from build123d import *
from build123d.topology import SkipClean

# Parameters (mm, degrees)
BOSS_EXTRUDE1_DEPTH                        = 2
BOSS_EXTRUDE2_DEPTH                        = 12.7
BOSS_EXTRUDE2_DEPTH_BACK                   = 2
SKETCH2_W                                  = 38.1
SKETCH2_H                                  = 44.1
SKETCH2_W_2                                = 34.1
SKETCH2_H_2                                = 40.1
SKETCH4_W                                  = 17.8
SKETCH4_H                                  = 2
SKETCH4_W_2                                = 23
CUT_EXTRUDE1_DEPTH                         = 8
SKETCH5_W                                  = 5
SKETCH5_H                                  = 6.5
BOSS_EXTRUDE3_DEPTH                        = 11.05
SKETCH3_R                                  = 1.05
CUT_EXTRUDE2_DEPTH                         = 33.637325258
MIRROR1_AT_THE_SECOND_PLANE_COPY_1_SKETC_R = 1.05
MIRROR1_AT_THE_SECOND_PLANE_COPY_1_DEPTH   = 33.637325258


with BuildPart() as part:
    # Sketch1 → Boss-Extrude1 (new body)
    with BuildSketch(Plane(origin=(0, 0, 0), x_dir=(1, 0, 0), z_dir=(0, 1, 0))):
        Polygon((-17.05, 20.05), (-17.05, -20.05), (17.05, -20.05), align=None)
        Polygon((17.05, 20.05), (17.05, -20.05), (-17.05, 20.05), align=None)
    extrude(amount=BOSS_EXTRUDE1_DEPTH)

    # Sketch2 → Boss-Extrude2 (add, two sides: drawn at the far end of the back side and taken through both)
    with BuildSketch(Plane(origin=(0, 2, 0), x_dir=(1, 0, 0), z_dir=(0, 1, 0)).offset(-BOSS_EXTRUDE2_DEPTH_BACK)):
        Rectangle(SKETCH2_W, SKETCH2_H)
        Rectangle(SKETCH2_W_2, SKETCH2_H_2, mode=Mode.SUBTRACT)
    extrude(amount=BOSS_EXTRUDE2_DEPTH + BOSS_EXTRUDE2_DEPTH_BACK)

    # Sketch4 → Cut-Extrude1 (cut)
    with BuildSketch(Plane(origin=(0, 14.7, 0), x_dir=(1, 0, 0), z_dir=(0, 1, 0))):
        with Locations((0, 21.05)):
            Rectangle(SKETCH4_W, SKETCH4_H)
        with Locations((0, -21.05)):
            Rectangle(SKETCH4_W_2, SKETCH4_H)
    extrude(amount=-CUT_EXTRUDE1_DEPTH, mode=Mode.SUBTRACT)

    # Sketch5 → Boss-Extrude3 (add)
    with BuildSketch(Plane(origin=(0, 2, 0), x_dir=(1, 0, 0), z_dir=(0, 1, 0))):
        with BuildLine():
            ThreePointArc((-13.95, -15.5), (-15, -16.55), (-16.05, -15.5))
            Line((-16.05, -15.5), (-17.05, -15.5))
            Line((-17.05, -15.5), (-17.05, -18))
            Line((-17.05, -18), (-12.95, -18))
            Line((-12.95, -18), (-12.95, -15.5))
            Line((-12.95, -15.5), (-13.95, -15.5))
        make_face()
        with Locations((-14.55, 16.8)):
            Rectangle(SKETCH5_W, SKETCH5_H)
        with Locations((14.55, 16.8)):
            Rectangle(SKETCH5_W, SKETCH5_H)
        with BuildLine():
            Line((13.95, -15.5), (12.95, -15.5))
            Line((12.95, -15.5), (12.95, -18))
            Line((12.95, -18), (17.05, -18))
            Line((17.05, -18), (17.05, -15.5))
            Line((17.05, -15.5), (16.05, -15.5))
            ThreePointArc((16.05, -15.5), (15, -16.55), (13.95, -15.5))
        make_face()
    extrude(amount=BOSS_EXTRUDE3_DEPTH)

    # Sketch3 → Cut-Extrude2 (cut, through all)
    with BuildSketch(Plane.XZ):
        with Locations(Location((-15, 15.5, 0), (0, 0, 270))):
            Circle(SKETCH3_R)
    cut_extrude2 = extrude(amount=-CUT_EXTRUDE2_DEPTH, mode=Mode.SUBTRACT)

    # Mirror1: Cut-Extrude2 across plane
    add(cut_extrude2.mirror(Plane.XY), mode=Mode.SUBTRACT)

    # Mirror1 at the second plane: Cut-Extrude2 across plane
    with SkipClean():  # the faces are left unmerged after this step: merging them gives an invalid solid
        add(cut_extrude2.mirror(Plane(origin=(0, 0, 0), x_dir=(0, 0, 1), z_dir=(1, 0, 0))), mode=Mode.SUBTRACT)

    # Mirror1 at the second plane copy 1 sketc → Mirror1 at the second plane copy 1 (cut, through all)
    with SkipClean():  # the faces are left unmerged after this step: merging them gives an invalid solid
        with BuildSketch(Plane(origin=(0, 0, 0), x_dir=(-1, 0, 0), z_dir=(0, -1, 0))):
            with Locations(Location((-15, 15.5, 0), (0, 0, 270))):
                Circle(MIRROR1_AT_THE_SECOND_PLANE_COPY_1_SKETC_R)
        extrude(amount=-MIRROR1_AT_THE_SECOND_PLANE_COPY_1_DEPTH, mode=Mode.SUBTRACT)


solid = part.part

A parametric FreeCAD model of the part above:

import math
import FreeCAD as App
import Part
import Sketcher

V = App.Vector
Q = App.Units.Quantity


def add_polygon(sketch, points):
    """Adds a closed chain of lines whose ends are joined by coincident constraints."""
    first, n = sketch.GeometryCount, len(points)
    for a, b in zip(points, points[1:] + points[:1]):
        sketch.addGeometry(Part.LineSegment(App.Vector(*a, 0), App.Vector(*b, 0)), False)
    for i in range(n):
        sketch.addConstraint(Sketcher.Constraint("Coincident", first + i, 2, first + (i + 1) % n, 1))

doc = App.newDocument("Part")
params = doc.addObject("Spreadsheet::Sheet", "Params")
for row, (alias, value) in enumerate([
    ("sketch1_width", "34.1 mm"),
    ("sketch1_height", "40.1 mm"),
    ("pad1_length", "2 mm"),
    ("sketch2_width", "38.1 mm"),
    ("sketch2_width2", "34.1 mm"),
    ("sketch2_height", "44.1 mm"),
    ("sketch2_height2", "40.1 mm"),
    ("pad2_length", "12.7 mm"),
    ("pad2_length2", "2 mm"),
    ("sketch3_width", "23 mm"),
    ("sketch3_height", "2 mm"),
    ("sketch3_width2", "17.8 mm"),
    ("pocket1_length", "8 mm"),
    ("sketch4_width", "1 mm"),
    ("sketch4_width2", "5 mm"),
    ("sketch4_radius", "1.05 mm"),
    ("sketch4_height", "2.5 mm"),
    ("sketch4_height2", "6.5 mm"),
    ("pad3_length", "11.05 mm"),
    ("sketch5_diameter", "2.1 mm"),
    ("sketch6_diameter", "2.1 mm"),
], start=1):
    params.set(f"A{row}", alias)
    params.set(f"B{row}", "=" + value)
    params.setAlias(f"B{row}", alias)

body = doc.addObject("PartDesign::Body", "Body")

# Sketch on XZ plane
sketch1 = body.newObject("Sketcher::SketchObject", "Sketch")
sketch1.AttachmentSupport = (doc.getObject("XZ_Plane"), [""])
sketch1.MapMode = "FlatFace"
add_polygon(sketch1, [(-17, -20), (-17, 20), (17, 20), (17, -20)])  # lines 0-3
sketch1.addConstraint([
    Sketcher.Constraint("Vertical", 0),
    Sketcher.Constraint("Horizontal", 1),
    Sketcher.Constraint("Vertical", 2),
    Sketcher.Constraint("Horizontal", 3),
    Sketcher.Constraint("Symmetric", 0, 2, 2, 2, -1, 1),
    Sketcher.Constraint("DistanceX", 1, 1, 1, 2, Q("34.1 mm")),
    Sketcher.Constraint("DistanceY", 0, 1, 0, 2, Q("40.1 mm")),
])
sketch1.setExpression("Constraints[9]", "Params.sketch1_width")
sketch1.setExpression("Constraints[10]", "Params.sketch1_height")
pad1 = body.newObject("PartDesign::Pad", "Pad")
pad1.Profile = sketch1
pad1.setExpression("Length", "Params.pad1_length")
pad1.Reversed = True

# Sketch on XZ plane
sketch2 = body.newObject("Sketcher::SketchObject", "Sketch001")
sketch2.AttachmentSupport = (doc.getObject("XZ_Plane"), [""])
sketch2.MapMode = "FlatFace"
sketch2.AttachmentOffset = App.Placement(V(0, 0, -2), App.Rotation())
add_polygon(sketch2, [(-19, -22), (-19, 22), (19, 22), (19, -22)])  # lines 0-3
add_polygon(sketch2, [(17, 20), (-17, 20), (-17, -20), (17, -20)])  # lines 4-7
sketch2.addConstraint([
    Sketcher.Constraint("Vertical", 0),
    Sketcher.Constraint("Horizontal", 1),
    Sketcher.Constraint("Vertical", 2),
    Sketcher.Constraint("Horizontal", 3),
    Sketcher.Constraint("Horizontal", 4),
    Sketcher.Constraint("Vertical", 5),
    Sketcher.Constraint("Horizontal", 6),
    Sketcher.Constraint("Vertical", 7),
    Sketcher.Constraint("Symmetric", 0, 2, 2, 2, -1, 1),
    Sketcher.Constraint("Symmetric", 4, 2, 6, 2, -1, 1),
    Sketcher.Constraint("DistanceX", 1, 1, 1, 2, Q("38.1 mm")),
    Sketcher.Constraint("DistanceX", 4, 2, 4, 1, Q("34.1 mm")),
    Sketcher.Constraint("DistanceY", 0, 1, 0, 2, Q("44.1 mm")),
    Sketcher.Constraint("DistanceY", 5, 2, 5, 1, Q("40.1 mm")),
])
sketch2.setExpression("Constraints[18]", "Params.sketch2_width")
sketch2.setExpression("Constraints[19]", "Params.sketch2_width2")
sketch2.setExpression("Constraints[20]", "Params.sketch2_height")
sketch2.setExpression("Constraints[21]", "Params.sketch2_height2")
pad2 = body.newObject("PartDesign::Pad", "Pad001")
pad2.Profile = sketch2
pad2.Type = "TwoLengths"
pad2.setExpression("Length", "Params.pad2_length")
pad2.setExpression("Length2", "Params.pad2_length2")
pad2.Reversed = True

# Sketch on XZ plane
sketch3 = body.newObject("Sketcher::SketchObject", "Sketch002")
sketch3.AttachmentSupport = (doc.getObject("XZ_Plane"), [""])
sketch3.MapMode = "FlatFace"
sketch3.AttachmentOffset = App.Placement(V(0, 0, -14.7), App.Rotation())
add_polygon(sketch3, [(-8.9, -22.1), (-8.9, -20.1), (8.9, -20.1), (8.9, -22.1)])  # lines 0-3
add_polygon(sketch3, [(-11.5, 20.1), (-11.5, 22.1), (11.5, 22.1), (11.5, 20.1)])  # lines 4-7
sketch3.addConstraint([
    Sketcher.Constraint("Vertical", 0),
    Sketcher.Constraint("Horizontal", 1),
    Sketcher.Constraint("Vertical", 2),
    Sketcher.Constraint("Horizontal", 3),
    Sketcher.Constraint("Vertical", 4),
    Sketcher.Constraint("Horizontal", 5),
    Sketcher.Constraint("Vertical", 6),
    Sketcher.Constraint("Horizontal", 7),
    Sketcher.Constraint("Equal", 2, 4),
    Sketcher.Constraint("DistanceX", 5, 1, 5, 2, Q("23 mm")),
    Sketcher.Constraint("DistanceY", 0, 1, 0, 2, Q("2 mm")),
    Sketcher.Constraint("DistanceX", 1, 1, 1, 2, Q("17.8 mm")),
    Sketcher.Constraint("DistanceX", 0, 2, -1, 1, Q("8.9 mm")),
    Sketcher.Constraint("DistanceX", 4, 2, -1, 1, Q("11.5 mm")),
    Sketcher.Constraint("DistanceY", 0, 2, 4, 2, Q("42.1 mm")),
    Sketcher.Constraint("DistanceY", 0, 2, -1, 1, Q("20.05 mm")),
])
sketch3.setExpression("Constraints[17]", "Params.sketch3_width")
sketch3.setExpression("Constraints[18]", "Params.sketch3_height")
sketch3.setExpression("Constraints[19]", "Params.sketch3_width2")
pocket1 = body.newObject("PartDesign::Pocket", "Pocket")
pocket1.Profile = sketch3
pocket1.setExpression("Length", "Params.pocket1_length")
pocket1.Reversed = True

# Sketch on XZ plane
sketch4 = body.newObject("Sketcher::SketchObject", "Sketch003")
sketch4.AttachmentSupport = (doc.getObject("XZ_Plane"), [""])
sketch4.MapMode = "FlatFace"
sketch4.AttachmentOffset = App.Placement(V(0, 0, -2), App.Rotation())
sketch4.addGeometry(Part.ArcOfCircle(Part.Circle(V(-15, 15.5, 0), V(0, 0, 1), 1.1), math.radians(0), math.radians(180)), False)  # 0
sketch4.addGeometry(Part.LineSegment(V(-16.1, 15.5, 0), V(-17.1, 15.5, 0)), False)  # 1
sketch4.addGeometry(Part.LineSegment(V(-17.1, 15.5, 0), V(-17.1, 18, 0)), False)  # 2
sketch4.addGeometry(Part.LineSegment(V(-17.1, 18, 0), V(-12.9, 18, 0)), False)  # 3
sketch4.addGeometry(Part.LineSegment(V(-12.9, 18, 0), V(-12.9, 15.5, 0)), False)  # 4
sketch4.addGeometry(Part.LineSegment(V(-12.9, 15.5, 0), V(-13.9, 15.5, 0)), False)  # 5
add_polygon(sketch4, [(-17.1, -20.1), (-17.1, -13.6), (-12.1, -13.6), (-12.1, -20.1)])  # lines 6-9
add_polygon(sketch4, [(12.1, -20.1), (12.1, -13.6), (17.1, -13.6), (17.1, -20.1)])  # lines 10-13
sketch4.addGeometry(Part.LineSegment(V(13.9, 15.5, 0), V(12.9, 15.5, 0)), False)  # 14
sketch4.addGeometry(Part.LineSegment(V(12.9, 15.5, 0), V(12.9, 18, 0)), False)  # 15
sketch4.addGeometry(Part.LineSegment(V(12.9, 18, 0), V(17.1, 18, 0)), False)  # 16
sketch4.addGeometry(Part.LineSegment(V(17.1, 18, 0), V(17.1, 15.5, 0)), False)  # 17
sketch4.addGeometry(Part.LineSegment(V(17.1, 15.5, 0), V(16.1, 15.5, 0)), False)  # 18
sketch4.addGeometry(Part.ArcOfCircle(Part.Circle(V(15, 15.5, 0), V(0, 0, 1), 1.1), math.radians(0), math.radians(180)), False)  # 19
sketch4.addConstraint([
    Sketcher.Constraint("Coincident", 0, 2, 1, 1),
    Sketcher.Constraint("Coincident", 1, 2, 2, 1),
    Sketcher.Constraint("Coincident", 2, 2, 3, 1),
    Sketcher.Constraint("Coincident", 3, 2, 4, 1),
    Sketcher.Constraint("Coincident", 4, 2, 5, 1),
    Sketcher.Constraint("Coincident", 5, 2, 0, 1),
    Sketcher.Constraint("Coincident", 14, 2, 15, 1),
    Sketcher.Constraint("Coincident", 15, 2, 16, 1),
    Sketcher.Constraint("Coincident", 16, 2, 17, 1),
    Sketcher.Constraint("Coincident", 17, 2, 18, 1),
    Sketcher.Constraint("Coincident", 18, 2, 19, 1),
    Sketcher.Constraint("Coincident", 19, 2, 14, 1),
    Sketcher.Constraint("Horizontal", 1),
    Sketcher.Constraint("Vertical", 2),
    Sketcher.Constraint("Horizontal", 3),
    Sketcher.Constraint("Vertical", 4),
    Sketcher.Constraint("Horizontal", 5),
    Sketcher.Constraint("Vertical", 6),
    Sketcher.Constraint("Horizontal", 7),
    Sketcher.Constraint("Vertical", 8),
    Sketcher.Constraint("Horizontal", 9),
    Sketcher.Constraint("Vertical", 10),
    Sketcher.Constraint("Horizontal", 11),
    Sketcher.Constraint("Vertical", 12),
    Sketcher.Constraint("Horizontal", 13),
    Sketcher.Constraint("Horizontal", 14),
    Sketcher.Constraint("Vertical", 15),
    Sketcher.Constraint("Horizontal", 16),
    Sketcher.Constraint("Vertical", 17),
    Sketcher.Constraint("Horizontal", 18),
    Sketcher.Constraint("Equal", 0, 19),
    Sketcher.Constraint("Symmetric", 0, 3, 19, 3, -2),
    Sketcher.Constraint("Symmetric", 7, 2, 10, 2, -2),
    Sketcher.Constraint("Symmetric", 9, 2, 12, 2, -2),
    Sketcher.Constraint("Symmetric", 4, 2, 14, 2, -2),
    Sketcher.Constraint("Symmetric", 2, 2, 16, 2, -2),
    Sketcher.Constraint("Horizontal", 19, 3, 0, 2),
    Sketcher.Constraint("Horizontal", 1, 2, 4, 2),
    Sketcher.Constraint("Horizontal", 14, 2, 17, 2),
    Sketcher.Constraint("Vertical", 2, 2, 6, 2),
    Sketcher.Constraint("Equal", 1, 5),
    Sketcher.Constraint("DistanceX", 1, 2, 1, 1, Q("1 mm")),
    Sketcher.Constraint("DistanceX", 7, 1, 7, 2, Q("5 mm")),
    Sketcher.Constraint("Radius", 0, Q("1.05 mm")),
    Sketcher.Constraint("DistanceY", 2, 1, 2, 2, Q("2.5 mm")),
    Sketcher.Constraint("DistanceY", 6, 1, 6, 2, Q("6.5 mm")),
    Sketcher.Constraint("DistanceX", 0, 3, -1, 1, Q("15 mm")),
    Sketcher.Constraint("DistanceY", -1, 1, 2, 2, Q("18 mm")),
    Sketcher.Constraint("DistanceY", 6, 2, -1, 1, Q("13.55 mm")),
])
sketch4.setExpression("Constraints[49]", "Params.sketch4_width")
sketch4.setExpression("Constraints[50]", "Params.sketch4_width2")
sketch4.setExpression("Constraints[51]", "Params.sketch4_radius")
sketch4.setExpression("Constraints[52]", "Params.sketch4_height")
sketch4.setExpression("Constraints[53]", "Params.sketch4_height2")
pad3 = body.newObject("PartDesign::Pad", "Pad002")
pad3.Profile = sketch4
pad3.setExpression("Length", "Params.pad3_length")
pad3.Reversed = True

# Sketch on XZ plane
sketch5 = body.newObject("Sketcher::SketchObject", "Sketch004")
sketch5.AttachmentSupport = (doc.getObject("XZ_Plane"), [""])
sketch5.MapMode = "FlatFace"
sketch5.addGeometry(Part.Circle(V(-15, 15.5, 0), V(0, 0, 1), 1.1), False)
sketch5.addConstraint([
    Sketcher.Constraint("Diameter", 0, Q("2.1 mm")),
    Sketcher.Constraint("DistanceX", 0, 3, -1, 1, Q("15 mm")),
    Sketcher.Constraint("DistanceY", -1, 1, 0, 3, Q("15.5 mm")),
])
sketch5.setExpression("Constraints[0]", "Params.sketch5_diameter")
pocket2 = body.newObject("PartDesign::Pocket", "Pocket001")
pocket2.Profile = sketch5
pocket2.Type = "ThroughAll"
doc.recompute()

mirrored = body.newObject("PartDesign::Mirrored", "Mirrored")
mirrored.Originals = [pocket2]
mirrored.MirrorPlane = (doc.getObject("XY_Plane"), [""])
body.Tip = mirrored
doc.recompute()

mirrored2 = body.newObject("PartDesign::Mirrored", "Mirrored001")
mirrored2.Originals = [pocket2]
mirrored2.MirrorPlane = (doc.getObject("YZ_Plane"), [""])
body.Tip = mirrored2

# Sketch on XZ plane
sketch6 = body.newObject("Sketcher::SketchObject", "Sketch005")
sketch6.AttachmentSupport = (doc.getObject("XZ_Plane"), [""])
sketch6.MapMode = "FlatFace"
sketch6.addGeometry(Part.Circle(V(15, -15.5, 0), V(0, 0, 1), 1.1), False)
sketch6.addConstraint([
    Sketcher.Constraint("Diameter", 0, Q("2.1 mm")),
    Sketcher.Constraint("DistanceX", -1, 1, 0, 3, Q("15 mm")),
    Sketcher.Constraint("DistanceY", 0, 3, -1, 1, Q("15.5 mm")),
])
sketch6.setExpression("Constraints[0]", "Params.sketch6_diameter")
pocket3 = body.newObject("PartDesign::Pocket", "Pocket002")
pocket3.Profile = sketch6
pocket3.Type = "ThroughAll"

doc.recompute()
